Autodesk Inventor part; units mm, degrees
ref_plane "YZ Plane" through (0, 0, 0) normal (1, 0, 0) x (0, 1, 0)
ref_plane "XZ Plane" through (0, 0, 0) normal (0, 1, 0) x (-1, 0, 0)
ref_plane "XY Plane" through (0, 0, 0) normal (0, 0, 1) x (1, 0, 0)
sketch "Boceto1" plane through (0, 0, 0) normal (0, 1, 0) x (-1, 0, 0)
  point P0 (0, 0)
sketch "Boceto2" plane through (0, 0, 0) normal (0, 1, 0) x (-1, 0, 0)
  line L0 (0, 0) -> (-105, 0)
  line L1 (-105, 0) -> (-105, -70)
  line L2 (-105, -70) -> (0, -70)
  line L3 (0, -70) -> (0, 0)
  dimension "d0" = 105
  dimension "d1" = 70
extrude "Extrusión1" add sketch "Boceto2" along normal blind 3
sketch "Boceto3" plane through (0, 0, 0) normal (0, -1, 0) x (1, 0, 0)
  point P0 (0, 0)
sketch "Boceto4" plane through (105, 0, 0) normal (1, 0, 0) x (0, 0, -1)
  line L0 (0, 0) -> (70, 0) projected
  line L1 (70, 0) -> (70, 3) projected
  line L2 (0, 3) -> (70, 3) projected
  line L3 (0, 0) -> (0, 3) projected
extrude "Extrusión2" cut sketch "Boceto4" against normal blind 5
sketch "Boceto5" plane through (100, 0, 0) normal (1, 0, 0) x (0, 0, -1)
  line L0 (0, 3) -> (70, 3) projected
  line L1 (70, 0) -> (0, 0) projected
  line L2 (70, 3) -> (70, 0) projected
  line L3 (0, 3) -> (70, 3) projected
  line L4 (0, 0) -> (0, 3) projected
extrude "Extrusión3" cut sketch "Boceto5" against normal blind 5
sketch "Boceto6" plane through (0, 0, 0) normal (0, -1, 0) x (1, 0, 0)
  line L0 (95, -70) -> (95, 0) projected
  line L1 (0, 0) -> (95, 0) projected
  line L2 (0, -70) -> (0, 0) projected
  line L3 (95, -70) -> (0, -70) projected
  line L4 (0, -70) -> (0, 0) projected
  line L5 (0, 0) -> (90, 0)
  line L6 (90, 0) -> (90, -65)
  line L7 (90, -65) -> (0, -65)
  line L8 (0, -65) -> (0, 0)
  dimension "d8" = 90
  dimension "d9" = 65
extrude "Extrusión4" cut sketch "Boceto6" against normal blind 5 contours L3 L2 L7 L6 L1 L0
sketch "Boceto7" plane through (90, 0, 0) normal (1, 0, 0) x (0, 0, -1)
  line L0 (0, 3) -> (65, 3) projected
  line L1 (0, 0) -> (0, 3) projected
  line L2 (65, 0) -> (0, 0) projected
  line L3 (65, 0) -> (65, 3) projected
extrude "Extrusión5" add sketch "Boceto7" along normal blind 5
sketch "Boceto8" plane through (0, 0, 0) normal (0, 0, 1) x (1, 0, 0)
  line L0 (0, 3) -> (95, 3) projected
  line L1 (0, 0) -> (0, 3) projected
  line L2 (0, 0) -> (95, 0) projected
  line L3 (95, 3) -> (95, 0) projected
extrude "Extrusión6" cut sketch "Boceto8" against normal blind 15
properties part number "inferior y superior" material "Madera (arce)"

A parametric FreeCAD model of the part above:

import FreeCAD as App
import Part
import Sketcher


def add_polygon(sketch, points):
    """Adds a closed chain of lines whose ends are joined by coincident constraints."""
    first, n = sketch.GeometryCount, len(points)
    for a, b in zip(points, points[1:] + points[:1]):
        sketch.addGeometry(Part.LineSegment(App.Vector(*a, 0), App.Vector(*b, 0)), False)
    for i in range(n):
        sketch.addConstraint(Sketcher.Constraint("Coincident", first + i, 2, first + (i + 1) % n, 1))

doc = App.newDocument("Part")
params = doc.addObject("Spreadsheet::Sheet", "Params")
for row, (alias, value) in enumerate([
    ("sketch1_width", "105 mm"),
    ("sketch1_height", "70 mm"),
    ("pad1_length", "3 mm"),
    ("sketch2_width", "3 mm"),
    ("sketch2_height", "70 mm"),
    ("pocket1_length", "5 mm"),
    ("sketch3_width", "3 mm"),
    ("sketch3_height", "70 mm"),
    ("pocket2_length", "5 mm"),
    ("sketch4_width", "90 mm"),
    ("sketch4_height", "65 mm"),
    ("sketch4_width2", "95 mm"),
    ("pocket3_length", "5 mm"),
    ("sketch5_width", "3 mm"),
    ("sketch5_height", "65 mm"),
    ("pad2_length", "5 mm"),
    ("sketch6_width", "95 mm"),
    ("sketch6_height", "3 mm"),
    ("pocket4_length", "15 mm"),
], start=1):
    params.set(f"A{row}", alias)
    params.set(f"B{row}", "=" + value)
    params.setAlias(f"B{row}", alias)

body = doc.addObject("PartDesign::Body", "Body")

# Sketch on XZ plane
sketch1 = body.newObject("Sketcher::SketchObject", "Sketch")
sketch1.AttachmentSupport = (doc.getObject("XZ_Plane"), [""])
sketch1.MapMode = "FlatFace"
add_polygon(sketch1, [(0, -70), (0, 0), (105, 0), (105, -70)])  # lines 0-3
sketch1.addConstraint([
    Sketcher.Constraint("Vertical", 0),
    Sketcher.Constraint("Horizontal", 1),
    Sketcher.Constraint("Vertical", 2),
    Sketcher.Constraint("Horizontal", 3),
    Sketcher.Constraint("Coincident", 0, 2, -1, 1),
    Sketcher.Constraint("DistanceX", 1, 1, 1, 2, 105.0),
    Sketcher.Constraint("DistanceY", 0, 1, 0, 2, 70.0),
])
sketch1.setExpression("Constraints[9]", "Params.sketch1_width")
sketch1.setExpression("Constraints[10]", "Params.sketch1_height")
pad1 = body.newObject("PartDesign::Pad", "Pad")
pad1.Profile = sketch1
pad1.setExpression("Length", "Params.pad1_length")
pad1.Reversed = True

# Sketch on YZ plane
sketch2 = body.newObject("Sketcher::SketchObject", "Sketch001")
sketch2.AttachmentSupport = (doc.getObject("YZ_Plane"), [""])
sketch2.MapMode = "FlatFace"
sketch2.AttachmentOffset = App.Placement(App.Vector(0, 0, 105), App.Rotation())
add_polygon(sketch2, [(3, 0), (0, 0), (0, -70), (3, -70)])  # lines 0-3
sketch2.addConstraint([
    Sketcher.Constraint("Horizontal", 0),
    Sketcher.Constraint("Vertical", 1),
    Sketcher.Constraint("Horizontal", 2),
    Sketcher.Constraint("Vertical", 3),
    Sketcher.Constraint("Coincident", 0, 2, -1, 1),
    Sketcher.Constraint("DistanceX", 0, 2, 0, 1, 3.0),
    Sketcher.Constraint("DistanceY", 1, 2, 1, 1, 70.0),
])
sketch2.setExpression("Constraints[9]", "Params.sketch2_width")
sketch2.setExpression("Constraints[10]", "Params.sketch2_height")
pocket1 = body.newObject("PartDesign::Pocket", "Pocket")
pocket1.Profile = sketch2
pocket1.setExpression("Length", "Params.pocket1_length")

# Sketch on YZ plane
sketch3 = body.newObject("Sketcher::SketchObject", "Sketch002")
sketch3.AttachmentSupport = (doc.getObject("YZ_Plane"), [""])
sketch3.MapMode = "FlatFace"
sketch3.AttachmentOffset = App.Placement(App.Vector(0, 0, 100), App.Rotation())
add_polygon(sketch3, [(3, -70), (3, 0), (0, 0), (0, -70)])  # lines 0-3
sketch3.addConstraint([
    Sketcher.Constraint("Vertical", 0),
    Sketcher.Constraint("Horizontal", 1),
    Sketcher.Constraint("Vertical", 2),
    Sketcher.Constraint("Horizontal", 3),
    Sketcher.Constraint("Coincident", 1, 2, -1, 1),
    Sketcher.Constraint("DistanceX", 1, 2, 1, 1, 3.0),
    Sketcher.Constraint("DistanceY", 0, 1, 0, 2, 70.0),
])
sketch3.setExpression("Constraints[9]", "Params.sketch3_width")
sketch3.setExpression("Constraints[10]", "Params.sketch3_height")
pocket2 = body.newObject("PartDesign::Pocket", "Pocket001")
pocket2.Profile = sketch3
pocket2.setExpression("Length", "Params.pocket2_length")

# Sketch on XZ plane
sketch4 = body.newObject("Sketcher::SketchObject", "Sketch003")
sketch4.AttachmentSupport = (doc.getObject("XZ_Plane"), [""])
sketch4.MapMode = "FlatFace"
add_polygon(sketch4, [(0, -70), (95, -70), (95, 0), (90, 0), (90, -65), (0, -65)])  # lines 0-5
sketch4.addConstraint([
    Sketcher.Constraint("Horizontal", 0),
    Sketcher.Constraint("Vertical", 1),
    Sketcher.Constraint("Horizontal", 2),
    Sketcher.Constraint("Vertical", 3),
    Sketcher.Constraint("Horizontal", 4),
    Sketcher.Constraint("Vertical", 5),
    Sketcher.Constraint("PointOnObject", 1, 2, -1),
    Sketcher.Constraint("PointOnObject", 4, 2, -2),
    Sketcher.Constraint("Equal", 2, 5),
    Sketcher.Constraint("DistanceX", 4, 2, 4, 1, 90.0),
    Sketcher.Constraint("DistanceY", 3, 2, 3, 1, 65.0),
    Sketcher.Constraint("DistanceX", 0, 1, 0, 2, 95.0),
])
sketch4.setExpression("Constraints[15]", "Params.sketch4_width")
sketch4.setExpression("Constraints[16]", "Params.sketch4_height")
sketch4.setExpression("Constraints[17]", "Params.sketch4_width2")
pocket3 = body.newObject("PartDesign::Pocket", "Pocket002")
pocket3.Profile = sketch4
pocket3.setExpression("Length", "Params.pocket3_length")

# Sketch on YZ plane
sketch5 = body.newObject("Sketcher::SketchObject", "Sketch004")
sketch5.AttachmentSupport = (doc.getObject("YZ_Plane"), [""])
sketch5.MapMode = "FlatFace"
sketch5.AttachmentOffset = App.Placement(App.Vector(0, 0, 90), App.Rotation())
add_polygon(sketch5, [(3, -65), (3, 0), (0, 0), (0, -65)])  # lines 0-3
sketch5.addConstraint([
    Sketcher.Constraint("Vertical", 0),
    Sketcher.Constraint("Horizontal", 1),
    Sketcher.Constraint("Vertical", 2),
    Sketcher.Constraint("Horizontal", 3),
    Sketcher.Constraint("Coincident", 1, 2, -1, 1),
    Sketcher.Constraint("DistanceX", 1, 2, 1, 1, 3.0),
    Sketcher.Constraint("DistanceY", 0, 1, 0, 2, 65.0),
])
sketch5.setExpression("Constraints[9]", "Params.sketch5_width")
sketch5.setExpression("Constraints[10]", "Params.sketch5_height")
pad2 = body.newObject("PartDesign::Pad", "Pad001")
pad2.Profile = sketch5
pad2.setExpression("Length", "Params.pad2_length")

# Sketch on XY plane
sketch6 = body.newObject("Sketcher::SketchObject", "Sketch005")
sketch6.AttachmentSupport = (doc.getObject("XY_Plane"), [""])
sketch6.MapMode = "FlatFace"
add_polygon(sketch6, [(95, 3), (0, 3), (0, 0), (95, 0)])  # lines 0-3
sketch6.addConstraint([
    Sketcher.Constraint("Horizontal", 0),
    Sketcher.Constraint("Vertical", 1),
    Sketcher.Constraint("Horizontal", 2),
    Sketcher.Constraint("Vertical", 3),
    Sketcher.Constraint("Coincident", 1, 2, -1, 1),
    Sketcher.Constraint("DistanceX", 0, 2, 0, 1, 95.0),
    Sketcher.Constraint("DistanceY", 1, 2, 1, 1, 3.0),
])
sketch6.setExpression("Constraints[9]", "Params.sketch6_width")
sketch6.setExpression("Constraints[10]", "Params.sketch6_height")
pocket4 = body.newObject("PartDesign::Pocket", "Pocket003")
pocket4.Profile = sketch6
pocket4.setExpression("Length", "Params.pocket4_length")

doc.recompute()
